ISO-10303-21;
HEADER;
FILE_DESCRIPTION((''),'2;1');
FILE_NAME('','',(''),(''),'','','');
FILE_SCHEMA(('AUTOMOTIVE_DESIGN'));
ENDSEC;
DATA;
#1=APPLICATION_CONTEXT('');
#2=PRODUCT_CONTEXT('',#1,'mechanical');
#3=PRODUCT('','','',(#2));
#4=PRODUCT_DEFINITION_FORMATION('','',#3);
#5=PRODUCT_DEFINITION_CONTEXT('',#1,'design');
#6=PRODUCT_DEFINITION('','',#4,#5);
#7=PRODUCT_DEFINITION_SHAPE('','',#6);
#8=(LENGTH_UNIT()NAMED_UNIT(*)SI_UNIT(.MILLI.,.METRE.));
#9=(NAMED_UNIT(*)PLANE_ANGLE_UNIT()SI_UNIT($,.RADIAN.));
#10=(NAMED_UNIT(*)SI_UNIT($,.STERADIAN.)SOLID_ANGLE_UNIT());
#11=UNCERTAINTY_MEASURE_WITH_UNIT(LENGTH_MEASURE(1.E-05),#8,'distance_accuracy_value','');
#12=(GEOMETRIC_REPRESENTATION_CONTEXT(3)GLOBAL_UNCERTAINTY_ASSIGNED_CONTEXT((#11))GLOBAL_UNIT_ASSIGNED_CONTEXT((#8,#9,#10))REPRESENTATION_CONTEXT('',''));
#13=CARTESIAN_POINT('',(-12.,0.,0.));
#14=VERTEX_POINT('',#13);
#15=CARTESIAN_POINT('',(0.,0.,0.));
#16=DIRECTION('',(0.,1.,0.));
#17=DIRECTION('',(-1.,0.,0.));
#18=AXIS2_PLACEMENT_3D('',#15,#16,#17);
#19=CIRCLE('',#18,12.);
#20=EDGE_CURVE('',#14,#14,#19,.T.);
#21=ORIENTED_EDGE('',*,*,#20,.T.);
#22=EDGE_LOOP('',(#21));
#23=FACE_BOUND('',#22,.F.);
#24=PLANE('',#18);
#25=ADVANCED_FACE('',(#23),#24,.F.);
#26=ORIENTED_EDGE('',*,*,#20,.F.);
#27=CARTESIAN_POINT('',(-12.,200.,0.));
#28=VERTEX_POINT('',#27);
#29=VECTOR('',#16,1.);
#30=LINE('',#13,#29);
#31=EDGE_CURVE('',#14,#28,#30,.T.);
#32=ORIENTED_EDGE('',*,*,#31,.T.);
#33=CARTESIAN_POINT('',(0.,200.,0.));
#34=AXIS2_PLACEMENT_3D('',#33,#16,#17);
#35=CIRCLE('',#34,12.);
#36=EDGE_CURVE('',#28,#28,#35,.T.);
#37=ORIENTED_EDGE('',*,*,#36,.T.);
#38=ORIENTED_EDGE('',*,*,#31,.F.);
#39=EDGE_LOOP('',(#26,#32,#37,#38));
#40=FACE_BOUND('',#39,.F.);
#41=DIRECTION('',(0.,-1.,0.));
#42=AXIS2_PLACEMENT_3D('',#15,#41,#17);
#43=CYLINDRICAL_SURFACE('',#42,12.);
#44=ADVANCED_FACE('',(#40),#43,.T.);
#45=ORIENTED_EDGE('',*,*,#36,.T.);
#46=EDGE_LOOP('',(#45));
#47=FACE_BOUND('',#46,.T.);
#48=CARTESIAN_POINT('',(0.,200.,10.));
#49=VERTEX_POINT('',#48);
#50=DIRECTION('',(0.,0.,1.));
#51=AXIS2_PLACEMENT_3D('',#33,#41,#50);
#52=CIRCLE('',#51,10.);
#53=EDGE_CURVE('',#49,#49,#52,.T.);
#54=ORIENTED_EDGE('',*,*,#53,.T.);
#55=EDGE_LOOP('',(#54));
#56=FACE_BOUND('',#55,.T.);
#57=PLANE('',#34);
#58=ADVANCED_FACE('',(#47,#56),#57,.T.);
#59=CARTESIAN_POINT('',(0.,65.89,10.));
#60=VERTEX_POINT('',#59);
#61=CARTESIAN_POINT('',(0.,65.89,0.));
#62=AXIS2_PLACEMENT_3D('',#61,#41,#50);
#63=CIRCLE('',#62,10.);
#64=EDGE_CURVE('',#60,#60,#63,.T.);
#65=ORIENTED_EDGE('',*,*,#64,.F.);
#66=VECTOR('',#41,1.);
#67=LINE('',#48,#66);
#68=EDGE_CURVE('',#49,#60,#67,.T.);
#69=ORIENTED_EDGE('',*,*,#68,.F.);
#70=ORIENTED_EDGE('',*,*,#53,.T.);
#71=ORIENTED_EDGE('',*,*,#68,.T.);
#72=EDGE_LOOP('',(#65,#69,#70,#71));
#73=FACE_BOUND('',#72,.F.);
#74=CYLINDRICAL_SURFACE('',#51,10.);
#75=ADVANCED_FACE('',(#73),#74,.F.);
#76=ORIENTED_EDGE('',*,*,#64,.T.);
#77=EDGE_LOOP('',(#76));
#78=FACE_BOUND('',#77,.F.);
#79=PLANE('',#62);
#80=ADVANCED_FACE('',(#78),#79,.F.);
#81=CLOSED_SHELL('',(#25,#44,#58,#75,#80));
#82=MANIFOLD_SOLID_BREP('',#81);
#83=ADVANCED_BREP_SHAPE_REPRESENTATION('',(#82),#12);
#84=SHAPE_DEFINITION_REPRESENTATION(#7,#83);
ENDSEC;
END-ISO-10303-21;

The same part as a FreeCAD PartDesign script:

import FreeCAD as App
import Part
import Sketcher

doc = App.newDocument("Part")
body = doc.addObject("PartDesign::Body", "Body")

# Sketch on XZ plane
sketch1 = body.newObject("Sketcher::SketchObject", "Sketch")
sketch1.AttachmentSupport = (doc.getObject("XZ_Plane"), [""])
sketch1.MapMode = "FlatFace"
sketch1.addGeometry(Part.Circle(App.Vector(0, 0, 0), App.Vector(0, 0, 1), 12), False)
sketch1.addConstraint([
    Sketcher.Constraint("Coincident", 0, 3, -1, 1),
    Sketcher.Constraint("Diameter", 0, 24.0),
])
pad1 = body.newObject("PartDesign::Pad", "Pad")
pad1.Profile = sketch1
pad1.Length = 200
pad1.Reversed = True

# Sketch on XZ plane
sketch2 = body.newObject("Sketcher::SketchObject", "Sketch001")
sketch2.AttachmentSupport = (doc.getObject("XZ_Plane"), [""])
sketch2.MapMode = "FlatFace"
sketch2.AttachmentOffset = App.Placement(App.Vector(0, 0, -200), App.Rotation())
sketch2.addGeometry(Part.Circle(App.Vector(0, 0, 0), App.Vector(0, 0, 1), 10), False)
sketch2.addConstraint([
    Sketcher.Constraint("Coincident", 0, 3, -1, 1),
    Sketcher.Constraint("Diameter", 0, 20.0),
])
doc.recompute()
hole = body.newObject("PartDesign::Hole", "Hole")
hole.Profile = sketch2
hole.ThreadType = "None"
hole.Diameter = 20
hole.DepthType = "Dimension"
hole.Depth = 134.11
hole.DrillPoint = "Flat"
hole.Reversed = True

doc.recompute()
